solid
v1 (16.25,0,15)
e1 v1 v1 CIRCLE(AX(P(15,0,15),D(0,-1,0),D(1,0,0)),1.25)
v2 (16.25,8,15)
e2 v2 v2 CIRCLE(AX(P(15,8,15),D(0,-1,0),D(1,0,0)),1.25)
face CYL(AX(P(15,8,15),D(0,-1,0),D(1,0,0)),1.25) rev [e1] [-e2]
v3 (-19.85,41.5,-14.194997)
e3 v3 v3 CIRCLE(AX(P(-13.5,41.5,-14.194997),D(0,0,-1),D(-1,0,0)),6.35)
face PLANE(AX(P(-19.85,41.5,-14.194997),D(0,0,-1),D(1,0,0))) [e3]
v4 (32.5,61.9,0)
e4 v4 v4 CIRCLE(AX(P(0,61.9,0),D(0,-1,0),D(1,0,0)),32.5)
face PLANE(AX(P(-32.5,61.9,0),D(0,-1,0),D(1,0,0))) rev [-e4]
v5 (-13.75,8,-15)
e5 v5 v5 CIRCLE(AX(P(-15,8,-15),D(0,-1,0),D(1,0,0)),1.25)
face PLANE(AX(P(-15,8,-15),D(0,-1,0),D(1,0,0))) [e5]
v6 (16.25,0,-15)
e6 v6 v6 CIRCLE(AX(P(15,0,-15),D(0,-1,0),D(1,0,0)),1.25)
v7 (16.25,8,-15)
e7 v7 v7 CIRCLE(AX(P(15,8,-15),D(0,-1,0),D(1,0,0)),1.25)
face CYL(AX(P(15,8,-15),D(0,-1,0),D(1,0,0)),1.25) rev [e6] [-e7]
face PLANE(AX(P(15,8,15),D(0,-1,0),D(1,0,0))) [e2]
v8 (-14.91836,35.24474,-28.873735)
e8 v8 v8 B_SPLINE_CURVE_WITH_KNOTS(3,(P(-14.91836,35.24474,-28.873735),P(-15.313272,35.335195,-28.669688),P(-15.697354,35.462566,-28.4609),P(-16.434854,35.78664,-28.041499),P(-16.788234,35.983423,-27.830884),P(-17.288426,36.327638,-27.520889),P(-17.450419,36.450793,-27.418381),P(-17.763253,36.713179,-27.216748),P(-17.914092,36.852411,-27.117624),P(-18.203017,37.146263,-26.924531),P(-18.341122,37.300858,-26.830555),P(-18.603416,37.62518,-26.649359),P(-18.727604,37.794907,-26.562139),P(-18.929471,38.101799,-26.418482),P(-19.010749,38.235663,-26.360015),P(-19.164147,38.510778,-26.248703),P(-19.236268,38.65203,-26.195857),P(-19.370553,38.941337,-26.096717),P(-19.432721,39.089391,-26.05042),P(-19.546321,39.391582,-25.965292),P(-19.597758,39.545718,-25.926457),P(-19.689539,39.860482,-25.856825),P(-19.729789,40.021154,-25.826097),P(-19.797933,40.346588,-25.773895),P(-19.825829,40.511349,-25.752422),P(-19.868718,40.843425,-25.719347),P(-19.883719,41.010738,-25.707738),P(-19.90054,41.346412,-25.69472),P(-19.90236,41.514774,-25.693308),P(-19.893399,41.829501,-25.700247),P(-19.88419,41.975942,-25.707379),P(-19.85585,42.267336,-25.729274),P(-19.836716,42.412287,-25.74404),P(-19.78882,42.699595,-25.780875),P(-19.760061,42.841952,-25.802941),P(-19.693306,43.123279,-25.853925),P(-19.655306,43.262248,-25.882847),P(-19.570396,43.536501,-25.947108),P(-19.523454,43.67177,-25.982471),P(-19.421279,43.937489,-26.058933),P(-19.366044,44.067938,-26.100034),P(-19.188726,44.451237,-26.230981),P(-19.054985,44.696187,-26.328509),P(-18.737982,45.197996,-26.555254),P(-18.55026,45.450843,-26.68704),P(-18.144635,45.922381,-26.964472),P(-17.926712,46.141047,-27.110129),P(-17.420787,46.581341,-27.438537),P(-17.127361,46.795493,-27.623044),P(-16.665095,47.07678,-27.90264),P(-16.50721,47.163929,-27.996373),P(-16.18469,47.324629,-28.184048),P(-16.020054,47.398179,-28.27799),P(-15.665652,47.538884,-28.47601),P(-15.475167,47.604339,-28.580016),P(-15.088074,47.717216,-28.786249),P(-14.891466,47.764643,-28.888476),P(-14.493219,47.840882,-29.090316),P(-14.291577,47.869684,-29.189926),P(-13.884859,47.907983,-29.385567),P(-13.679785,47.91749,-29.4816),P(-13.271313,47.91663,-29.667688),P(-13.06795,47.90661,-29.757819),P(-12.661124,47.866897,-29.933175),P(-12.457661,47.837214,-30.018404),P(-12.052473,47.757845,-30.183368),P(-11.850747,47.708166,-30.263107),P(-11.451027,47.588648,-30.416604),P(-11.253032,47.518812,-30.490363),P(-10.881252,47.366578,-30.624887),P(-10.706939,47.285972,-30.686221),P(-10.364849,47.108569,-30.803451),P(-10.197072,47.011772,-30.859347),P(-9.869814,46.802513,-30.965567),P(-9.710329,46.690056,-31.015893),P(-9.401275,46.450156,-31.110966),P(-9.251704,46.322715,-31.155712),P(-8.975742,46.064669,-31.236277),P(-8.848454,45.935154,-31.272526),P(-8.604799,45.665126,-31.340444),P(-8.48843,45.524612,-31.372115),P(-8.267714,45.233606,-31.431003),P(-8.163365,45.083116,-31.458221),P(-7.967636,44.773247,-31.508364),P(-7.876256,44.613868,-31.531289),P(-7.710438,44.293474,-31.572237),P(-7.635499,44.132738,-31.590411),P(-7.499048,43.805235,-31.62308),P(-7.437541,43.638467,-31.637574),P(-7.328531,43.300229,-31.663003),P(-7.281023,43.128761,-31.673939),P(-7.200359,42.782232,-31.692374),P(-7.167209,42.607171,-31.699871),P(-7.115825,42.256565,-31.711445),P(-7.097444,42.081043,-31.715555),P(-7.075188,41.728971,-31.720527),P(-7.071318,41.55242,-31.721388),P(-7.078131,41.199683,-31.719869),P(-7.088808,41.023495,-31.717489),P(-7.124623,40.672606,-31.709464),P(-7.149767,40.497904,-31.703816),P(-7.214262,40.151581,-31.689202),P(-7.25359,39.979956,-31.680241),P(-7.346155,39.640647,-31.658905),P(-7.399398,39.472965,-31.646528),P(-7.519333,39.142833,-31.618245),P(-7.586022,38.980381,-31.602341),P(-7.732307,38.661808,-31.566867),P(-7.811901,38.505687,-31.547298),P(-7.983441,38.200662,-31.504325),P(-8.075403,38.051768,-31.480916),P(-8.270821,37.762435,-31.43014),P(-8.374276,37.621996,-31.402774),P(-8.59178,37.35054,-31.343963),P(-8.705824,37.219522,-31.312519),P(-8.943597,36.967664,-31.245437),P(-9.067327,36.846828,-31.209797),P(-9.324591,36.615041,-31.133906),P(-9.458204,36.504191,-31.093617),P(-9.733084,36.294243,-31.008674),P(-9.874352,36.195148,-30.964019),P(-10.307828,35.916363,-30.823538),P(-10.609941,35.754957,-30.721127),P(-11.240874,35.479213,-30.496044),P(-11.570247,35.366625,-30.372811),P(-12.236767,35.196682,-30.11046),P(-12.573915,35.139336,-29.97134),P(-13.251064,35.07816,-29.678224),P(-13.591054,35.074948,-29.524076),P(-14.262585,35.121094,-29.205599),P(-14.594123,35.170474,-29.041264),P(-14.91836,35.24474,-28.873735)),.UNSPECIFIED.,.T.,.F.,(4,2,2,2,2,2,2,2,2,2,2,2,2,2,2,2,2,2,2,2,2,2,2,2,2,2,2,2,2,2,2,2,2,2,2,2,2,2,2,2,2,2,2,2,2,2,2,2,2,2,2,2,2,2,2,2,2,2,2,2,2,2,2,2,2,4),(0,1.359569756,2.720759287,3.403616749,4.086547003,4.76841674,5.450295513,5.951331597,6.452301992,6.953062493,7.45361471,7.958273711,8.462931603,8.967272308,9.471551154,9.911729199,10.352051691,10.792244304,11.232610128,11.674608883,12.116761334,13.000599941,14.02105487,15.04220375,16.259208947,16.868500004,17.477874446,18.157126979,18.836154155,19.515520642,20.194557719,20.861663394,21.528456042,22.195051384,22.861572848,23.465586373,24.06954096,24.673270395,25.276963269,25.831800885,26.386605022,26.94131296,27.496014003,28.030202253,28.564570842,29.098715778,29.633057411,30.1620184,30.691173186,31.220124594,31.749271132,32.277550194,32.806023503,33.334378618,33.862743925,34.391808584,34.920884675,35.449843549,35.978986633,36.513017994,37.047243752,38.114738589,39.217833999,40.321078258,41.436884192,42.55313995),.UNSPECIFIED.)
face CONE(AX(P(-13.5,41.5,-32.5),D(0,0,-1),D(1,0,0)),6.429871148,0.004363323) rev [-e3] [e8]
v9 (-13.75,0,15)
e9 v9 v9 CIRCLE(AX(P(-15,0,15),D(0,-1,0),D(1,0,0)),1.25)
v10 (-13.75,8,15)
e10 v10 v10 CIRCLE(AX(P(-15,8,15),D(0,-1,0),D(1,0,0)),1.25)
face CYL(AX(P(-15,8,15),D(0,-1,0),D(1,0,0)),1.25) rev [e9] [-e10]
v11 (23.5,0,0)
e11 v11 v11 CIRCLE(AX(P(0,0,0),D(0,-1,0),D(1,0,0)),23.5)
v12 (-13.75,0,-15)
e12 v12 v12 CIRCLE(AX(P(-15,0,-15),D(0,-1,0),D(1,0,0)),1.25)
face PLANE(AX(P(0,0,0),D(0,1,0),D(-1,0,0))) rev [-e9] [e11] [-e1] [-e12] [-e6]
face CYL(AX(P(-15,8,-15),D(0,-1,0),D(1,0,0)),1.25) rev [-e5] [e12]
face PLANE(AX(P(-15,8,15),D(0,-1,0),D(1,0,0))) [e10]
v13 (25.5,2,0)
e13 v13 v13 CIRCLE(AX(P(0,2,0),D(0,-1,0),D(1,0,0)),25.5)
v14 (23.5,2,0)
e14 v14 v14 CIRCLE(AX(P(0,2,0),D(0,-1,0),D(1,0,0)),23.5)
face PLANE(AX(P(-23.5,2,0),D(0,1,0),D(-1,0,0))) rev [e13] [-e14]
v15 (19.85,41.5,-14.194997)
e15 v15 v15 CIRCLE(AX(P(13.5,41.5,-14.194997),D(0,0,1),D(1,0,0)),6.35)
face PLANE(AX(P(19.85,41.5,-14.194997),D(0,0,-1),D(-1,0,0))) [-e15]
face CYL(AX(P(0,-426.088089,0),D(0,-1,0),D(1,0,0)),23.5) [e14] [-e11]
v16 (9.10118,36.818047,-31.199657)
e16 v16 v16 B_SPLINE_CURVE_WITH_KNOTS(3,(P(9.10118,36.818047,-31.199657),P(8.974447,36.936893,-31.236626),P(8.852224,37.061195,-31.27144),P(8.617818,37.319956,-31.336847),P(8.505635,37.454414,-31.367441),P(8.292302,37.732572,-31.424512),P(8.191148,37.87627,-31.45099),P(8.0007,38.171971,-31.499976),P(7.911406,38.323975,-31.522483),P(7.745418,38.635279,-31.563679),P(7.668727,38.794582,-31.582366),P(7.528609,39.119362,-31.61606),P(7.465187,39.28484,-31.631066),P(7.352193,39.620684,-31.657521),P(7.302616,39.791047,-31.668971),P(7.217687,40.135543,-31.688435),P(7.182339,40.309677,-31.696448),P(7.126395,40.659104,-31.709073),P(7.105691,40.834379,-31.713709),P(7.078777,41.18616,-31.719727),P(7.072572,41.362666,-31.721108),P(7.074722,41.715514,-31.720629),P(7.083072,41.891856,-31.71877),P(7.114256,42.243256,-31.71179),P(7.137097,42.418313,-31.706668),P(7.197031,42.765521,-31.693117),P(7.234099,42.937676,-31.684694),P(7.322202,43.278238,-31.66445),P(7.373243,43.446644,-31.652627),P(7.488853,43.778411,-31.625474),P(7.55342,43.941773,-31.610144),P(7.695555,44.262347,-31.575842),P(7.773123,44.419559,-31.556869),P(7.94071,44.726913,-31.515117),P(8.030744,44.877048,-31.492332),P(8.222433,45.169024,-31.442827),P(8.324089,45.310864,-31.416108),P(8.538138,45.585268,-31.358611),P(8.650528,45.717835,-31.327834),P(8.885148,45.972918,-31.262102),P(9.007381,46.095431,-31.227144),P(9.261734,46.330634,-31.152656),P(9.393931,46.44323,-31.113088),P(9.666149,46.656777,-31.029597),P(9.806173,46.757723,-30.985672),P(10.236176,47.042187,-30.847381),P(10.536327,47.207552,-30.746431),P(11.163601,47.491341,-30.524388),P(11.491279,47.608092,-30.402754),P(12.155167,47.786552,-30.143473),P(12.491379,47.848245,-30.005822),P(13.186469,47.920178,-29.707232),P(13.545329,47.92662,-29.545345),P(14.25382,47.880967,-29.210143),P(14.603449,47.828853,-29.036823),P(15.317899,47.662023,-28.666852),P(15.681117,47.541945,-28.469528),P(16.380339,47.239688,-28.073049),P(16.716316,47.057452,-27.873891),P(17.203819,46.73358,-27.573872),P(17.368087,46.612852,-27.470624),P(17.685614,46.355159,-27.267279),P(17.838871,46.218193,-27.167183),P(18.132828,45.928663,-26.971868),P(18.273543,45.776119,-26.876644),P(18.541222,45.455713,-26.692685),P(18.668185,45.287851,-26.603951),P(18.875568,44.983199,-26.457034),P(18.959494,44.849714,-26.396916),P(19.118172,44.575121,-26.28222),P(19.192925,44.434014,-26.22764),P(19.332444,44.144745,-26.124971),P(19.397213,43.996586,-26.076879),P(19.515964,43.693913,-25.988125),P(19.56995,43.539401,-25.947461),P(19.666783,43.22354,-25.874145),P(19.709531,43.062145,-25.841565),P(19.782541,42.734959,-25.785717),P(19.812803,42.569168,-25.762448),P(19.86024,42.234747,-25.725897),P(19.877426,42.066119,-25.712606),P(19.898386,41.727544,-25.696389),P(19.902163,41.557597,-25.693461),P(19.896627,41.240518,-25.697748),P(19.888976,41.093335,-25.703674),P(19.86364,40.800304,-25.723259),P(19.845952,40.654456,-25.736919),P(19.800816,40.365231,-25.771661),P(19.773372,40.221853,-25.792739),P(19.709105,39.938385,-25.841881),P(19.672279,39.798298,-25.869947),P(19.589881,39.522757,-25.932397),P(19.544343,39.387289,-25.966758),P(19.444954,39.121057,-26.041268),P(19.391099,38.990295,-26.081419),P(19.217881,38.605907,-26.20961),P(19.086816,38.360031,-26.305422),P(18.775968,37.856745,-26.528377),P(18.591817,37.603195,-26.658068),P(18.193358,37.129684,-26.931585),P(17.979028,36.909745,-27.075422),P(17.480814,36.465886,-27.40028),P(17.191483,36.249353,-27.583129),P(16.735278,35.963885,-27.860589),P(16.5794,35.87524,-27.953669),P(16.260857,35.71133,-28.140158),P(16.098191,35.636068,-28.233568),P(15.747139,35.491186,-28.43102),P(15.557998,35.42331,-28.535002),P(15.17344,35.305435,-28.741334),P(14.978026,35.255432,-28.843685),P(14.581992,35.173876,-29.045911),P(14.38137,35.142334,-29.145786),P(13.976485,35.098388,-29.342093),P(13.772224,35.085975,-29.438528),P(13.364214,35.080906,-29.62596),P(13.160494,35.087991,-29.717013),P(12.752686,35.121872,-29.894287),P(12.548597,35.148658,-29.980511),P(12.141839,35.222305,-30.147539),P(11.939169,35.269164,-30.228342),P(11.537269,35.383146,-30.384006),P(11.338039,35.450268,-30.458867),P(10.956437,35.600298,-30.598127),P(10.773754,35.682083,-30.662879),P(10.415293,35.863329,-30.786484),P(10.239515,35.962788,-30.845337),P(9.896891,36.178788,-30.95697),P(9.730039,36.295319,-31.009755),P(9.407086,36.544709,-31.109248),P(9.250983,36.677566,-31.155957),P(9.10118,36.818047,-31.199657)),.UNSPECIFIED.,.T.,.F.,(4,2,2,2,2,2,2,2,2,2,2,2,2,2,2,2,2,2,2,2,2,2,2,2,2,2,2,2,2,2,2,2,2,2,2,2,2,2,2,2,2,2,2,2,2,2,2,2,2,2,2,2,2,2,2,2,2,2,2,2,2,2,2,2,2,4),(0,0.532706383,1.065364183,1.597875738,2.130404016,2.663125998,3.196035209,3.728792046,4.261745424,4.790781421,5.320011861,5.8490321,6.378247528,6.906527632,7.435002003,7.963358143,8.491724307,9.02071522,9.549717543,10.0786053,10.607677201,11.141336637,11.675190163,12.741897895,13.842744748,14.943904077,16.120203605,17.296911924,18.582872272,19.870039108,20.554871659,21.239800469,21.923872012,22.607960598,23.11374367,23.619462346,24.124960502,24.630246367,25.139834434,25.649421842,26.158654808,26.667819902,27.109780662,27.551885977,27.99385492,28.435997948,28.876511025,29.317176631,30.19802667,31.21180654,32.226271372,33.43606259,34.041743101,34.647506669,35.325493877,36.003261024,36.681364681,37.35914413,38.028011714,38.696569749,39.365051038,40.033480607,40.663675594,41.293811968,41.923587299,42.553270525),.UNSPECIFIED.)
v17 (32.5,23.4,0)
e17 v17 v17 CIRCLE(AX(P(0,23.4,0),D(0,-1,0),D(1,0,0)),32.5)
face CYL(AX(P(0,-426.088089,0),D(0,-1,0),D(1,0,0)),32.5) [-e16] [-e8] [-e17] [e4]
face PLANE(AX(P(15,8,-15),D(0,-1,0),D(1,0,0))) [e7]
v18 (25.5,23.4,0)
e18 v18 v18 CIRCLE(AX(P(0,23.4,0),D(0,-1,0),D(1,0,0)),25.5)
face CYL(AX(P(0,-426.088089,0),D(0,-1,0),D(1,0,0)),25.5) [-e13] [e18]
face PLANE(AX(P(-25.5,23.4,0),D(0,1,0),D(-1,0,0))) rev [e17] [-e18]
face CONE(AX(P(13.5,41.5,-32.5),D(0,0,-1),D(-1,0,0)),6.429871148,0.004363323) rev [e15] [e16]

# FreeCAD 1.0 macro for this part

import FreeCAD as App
import Part
import Sketcher

V = App.Vector
Q = App.Units.Quantity


def add_polygon(sketch, points):
    """Adds a closed chain of lines whose ends are joined by coincident constraints."""
    first, n = sketch.GeometryCount, len(points)
    for a, b in zip(points, points[1:] + points[:1]):
        sketch.addGeometry(Part.LineSegment(App.Vector(*a, 0), App.Vector(*b, 0)), False)
    for i in range(n):
        sketch.addConstraint(Sketcher.Constraint("Coincident", first + i, 2, first + (i + 1) % n, 1))

doc = App.newDocument("Part")
body = doc.addObject("PartDesign::Body", "Body")

sketch1 = body.newObject("Sketcher::SketchObject", "Sketch")
sketch1.AttachmentSupport = (doc.getObject("XY_Plane"), [""])
sketch1.MapMode = "FlatFace"
add_polygon(sketch1, [(-23.5, 0), (0, 0), (0, 61.9), (-32.5, 61.9), (-32.5, 23.4), (-25.5, 23.4), (-25.5, 2), (-23.5, 2)])
sketch1.addConstraint(Sketcher.Constraint("Horizontal", 0))
sketch1.addConstraint(Sketcher.Constraint("Vertical", 1))
sketch1.addConstraint(Sketcher.Constraint("Horizontal", 2))
sketch1.addConstraint(Sketcher.Constraint("Vertical", 3))
sketch1.addConstraint(Sketcher.Constraint("Horizontal", 4))
sketch1.addConstraint(Sketcher.Constraint("Vertical", 5))
sketch1.addConstraint(Sketcher.Constraint("Horizontal", 6))
sketch1.addConstraint(Sketcher.Constraint("Vertical", 7))
sketch1.addConstraint(Sketcher.Constraint("Coincident", 0, 2, -1, 1))
sketch1.addConstraint(Sketcher.Constraint("Equal", 6, 7))
sketch1.addConstraint(Sketcher.Constraint("DistanceX", 4, 1, 4, 2, Q("7 mm")))
sketch1.addConstraint(Sketcher.Constraint("DistanceX", 6, 1, 6, 2, Q("2 mm")))
sketch1.addConstraint(Sketcher.Constraint("DistanceX", 0, 1, 0, 2, Q("23.5 mm")))
sketch1.addConstraint(Sketcher.Constraint("DistanceY", 1, 1, 1, 2, Q("61.9 mm")))
sketch1.addConstraint(Sketcher.Constraint("DistanceY", 3, 2, 3, 1, Q("38.5 mm")))
revolution = body.newObject("PartDesign::Revolution", "Revolution")
revolution.Profile = sketch1
revolution.ReferenceAxis = (sketch1, ["V_Axis"])
revolution.Angle = 360

sketch2 = body.newObject("Sketcher::SketchObject", "Sketch001")
sketch2.AttachmentSupport = (doc.getObject("XZ_Plane"), [""])
sketch2.MapMode = "FlatFace"
sketch2.AttachmentOffset = App.Placement(V(0, 0, -41.5), App.Rotation())
add_polygon(sketch2, [(19.929871, -32.5), (19.85, -14.194997), (13.5, -14.194997), (13.5, -32.5)])
sketch2.addGeometry(Part.LineSegment(V(13.5, -14.194997, 0), V(13.5, -32.5, 0)), True)
sketch2.addConstraint(Sketcher.Constraint("Horizontal", 1))
sketch2.addConstraint(Sketcher.Constraint("Vertical", 2))
sketch2.addConstraint(Sketcher.Constraint("Horizontal", 3))
sketch2.addConstraint(Sketcher.Constraint("Vertical", 4))
sketch2.addConstraint(Sketcher.Constraint("Coincident", 4, 1, 1, 2))
sketch2.addConstraint(Sketcher.Constraint("Horizontal", 3, 2, 4, 2))
sketch2.addConstraint(Sketcher.Constraint("DistanceX", 1, 2, 1, 1, Q("6.35 mm")))
sketch2.addConstraint(Sketcher.Constraint("DistanceX", -1, 1, 1, 2, Q("13.5 mm")))
sketch2.addConstraint(Sketcher.Constraint("DistanceY", 2, 2, -1, 1, Q("32.5 mm")))
sketch2.addConstraint(Sketcher.Constraint("Angle", 0, Q("90.25 deg")))
sketch2.addConstraint(Sketcher.Constraint("DistanceY", 2, 2, 2, 1, Q("18.305003 mm")))
groove = body.newObject("PartDesign::Groove", "Groove")
groove.Profile = sketch2
groove.ReferenceAxis = (sketch2, ["Axis0"])
groove.Angle = 360
doc.recompute()

mirrored = body.newObject("PartDesign::Mirrored", "Mirrored")
mirrored.Originals = [groove]
mirrored.MirrorPlane = (doc.getObject("YZ_Plane"), [""])
body.Tip = mirrored

sketch3 = body.newObject("Sketcher::SketchObject", "Sketch002")
sketch3.AttachmentSupport = (doc.getObject("XZ_Plane"), [""])
sketch3.MapMode = "FlatFace"
sketch3.addGeometry(Part.Circle(V(-15, 15, 0), V(0, 0, 1), 1.25), False)
sketch3.addGeometry(Part.Circle(V(-15, -15, 0), V(0, 0, 1), 1.25), False)
sketch3.addGeometry(Part.Circle(V(15, -15, 0), V(0, 0, 1), 1.25), False)
sketch3.addGeometry(Part.Circle(V(15, 15, 0), V(0, 0, 1), 1.25), False)
sketch3.addConstraint(Sketcher.Constraint("Equal", 0, 1))
sketch3.addConstraint(Sketcher.Constraint("Equal", 1, 2))
sketch3.addConstraint(Sketcher.Constraint("Equal", 2, 3))
sketch3.addConstraint(Sketcher.Constraint("Symmetric", 0, 3, 2, 3, -1, 1))
sketch3.addConstraint(Sketcher.Constraint("Symmetric", 1, 3, 3, 3, -1, 1))
sketch3.addConstraint(Sketcher.Constraint("Symmetric", 1, 3, 2, 3, -2))
sketch3.addConstraint(Sketcher.Constraint("Diameter", 0, Q("2.5 mm")))
sketch3.addConstraint(Sketcher.Constraint("DistanceX", 0, 3, -1, 1, Q("15 mm")))
sketch3.addConstraint(Sketcher.Constraint("DistanceY", -1, 1, 0, 3, Q("15 mm")))
pocket1 = body.newObject("PartDesign::Pocket", "Pocket")
pocket1.Profile = sketch3
pocket1.Length = 8

doc.recompute()
